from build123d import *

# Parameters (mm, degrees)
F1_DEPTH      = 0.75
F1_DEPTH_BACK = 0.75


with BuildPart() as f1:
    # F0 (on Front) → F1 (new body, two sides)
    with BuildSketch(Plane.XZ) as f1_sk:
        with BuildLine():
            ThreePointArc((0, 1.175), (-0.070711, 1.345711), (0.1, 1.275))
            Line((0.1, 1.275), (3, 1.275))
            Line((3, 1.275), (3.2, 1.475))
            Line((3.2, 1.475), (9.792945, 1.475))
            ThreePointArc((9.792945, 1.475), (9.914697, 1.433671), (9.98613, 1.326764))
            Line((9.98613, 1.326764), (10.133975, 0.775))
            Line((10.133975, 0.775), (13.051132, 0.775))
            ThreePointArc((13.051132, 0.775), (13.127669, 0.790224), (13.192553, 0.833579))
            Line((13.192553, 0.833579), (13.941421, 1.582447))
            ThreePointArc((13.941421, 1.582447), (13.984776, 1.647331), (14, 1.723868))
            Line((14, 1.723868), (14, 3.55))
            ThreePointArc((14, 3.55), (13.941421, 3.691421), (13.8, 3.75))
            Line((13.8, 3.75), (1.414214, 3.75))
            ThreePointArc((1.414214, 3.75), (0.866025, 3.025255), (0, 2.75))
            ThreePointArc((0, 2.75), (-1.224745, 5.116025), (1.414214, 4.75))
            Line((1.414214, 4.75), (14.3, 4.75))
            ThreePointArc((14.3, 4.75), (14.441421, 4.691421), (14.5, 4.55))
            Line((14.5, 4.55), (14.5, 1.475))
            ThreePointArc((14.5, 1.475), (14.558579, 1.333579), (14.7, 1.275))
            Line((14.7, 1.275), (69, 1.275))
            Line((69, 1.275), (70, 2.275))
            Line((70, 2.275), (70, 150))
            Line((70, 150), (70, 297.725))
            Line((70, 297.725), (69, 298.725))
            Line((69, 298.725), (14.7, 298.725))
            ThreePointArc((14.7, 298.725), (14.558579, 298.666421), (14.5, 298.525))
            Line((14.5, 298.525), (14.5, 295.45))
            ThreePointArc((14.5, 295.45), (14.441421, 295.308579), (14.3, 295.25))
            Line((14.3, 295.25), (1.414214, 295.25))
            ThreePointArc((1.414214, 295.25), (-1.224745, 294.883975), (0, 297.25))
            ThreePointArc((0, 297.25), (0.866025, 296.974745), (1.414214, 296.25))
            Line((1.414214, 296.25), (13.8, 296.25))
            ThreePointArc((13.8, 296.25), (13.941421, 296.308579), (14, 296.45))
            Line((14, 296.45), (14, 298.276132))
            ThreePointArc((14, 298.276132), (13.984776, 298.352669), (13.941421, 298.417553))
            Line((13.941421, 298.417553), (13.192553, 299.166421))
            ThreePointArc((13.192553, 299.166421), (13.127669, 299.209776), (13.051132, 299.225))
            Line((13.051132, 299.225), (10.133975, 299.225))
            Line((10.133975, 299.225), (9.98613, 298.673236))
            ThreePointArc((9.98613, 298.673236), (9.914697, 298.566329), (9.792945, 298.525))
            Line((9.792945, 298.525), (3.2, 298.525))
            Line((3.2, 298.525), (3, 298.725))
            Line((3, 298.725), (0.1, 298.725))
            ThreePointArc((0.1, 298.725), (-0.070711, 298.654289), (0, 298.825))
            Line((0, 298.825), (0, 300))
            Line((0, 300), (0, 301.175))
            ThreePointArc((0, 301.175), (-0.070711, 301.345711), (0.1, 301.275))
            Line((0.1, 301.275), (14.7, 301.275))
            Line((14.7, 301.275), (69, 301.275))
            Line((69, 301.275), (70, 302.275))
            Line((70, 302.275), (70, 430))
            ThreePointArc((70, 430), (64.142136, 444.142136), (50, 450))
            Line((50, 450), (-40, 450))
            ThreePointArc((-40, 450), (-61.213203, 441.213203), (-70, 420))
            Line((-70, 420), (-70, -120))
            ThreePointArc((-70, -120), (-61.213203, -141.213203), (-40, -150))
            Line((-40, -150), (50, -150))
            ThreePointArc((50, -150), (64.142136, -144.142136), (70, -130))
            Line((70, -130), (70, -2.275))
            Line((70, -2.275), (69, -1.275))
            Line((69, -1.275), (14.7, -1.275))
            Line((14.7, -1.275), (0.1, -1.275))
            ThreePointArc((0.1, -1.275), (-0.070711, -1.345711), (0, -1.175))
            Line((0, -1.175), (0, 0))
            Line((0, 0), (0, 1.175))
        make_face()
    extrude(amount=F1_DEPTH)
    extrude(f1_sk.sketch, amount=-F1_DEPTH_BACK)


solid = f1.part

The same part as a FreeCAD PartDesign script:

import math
import FreeCAD as App
import Part
import Sketcher

V = App.Vector

doc = App.newDocument("Part")
params = doc.addObject("Spreadsheet::Sheet", "Params")
for row, (alias, value) in enumerate([
    ("sketch1_radius", "19.999999 mm"),
    ("sketch1_radius2", "30.000001 mm"),
    ("sketch1_radius3", "0.1 mm"),
    ("sketch1_radius4", "0.199999 mm"),
    ("sketch1_radius5", "1.500002 mm"),
    ("pad1_length", "0.75 mm"),
    ("pad1_length2", "0.75 mm"),
], start=1):
    params.set(f"A{row}", alias)
    params.set(f"B{row}", "=" + value)
    params.setAlias(f"B{row}", alias)

body = doc.addObject("PartDesign::Body", "Body")

sketch1 = body.newObject("Sketcher::SketchObject", "Sketch")
sketch1.AttachmentSupport = (doc.getObject("XZ_Plane"), [""])
sketch1.MapMode = "FlatFace"
sketch1.addGeometry(Part.ArcOfCircle(Part.Circle(V(0, 1.28, 0), V(0, 0, 1), 0.1), math.radians(0), math.radians(270)), False)
sketch1.addGeometry(Part.LineSegment(V(0.1, 1.27, 0), V(3, 1.27, 0)), False)
sketch1.addGeometry(Part.LineSegment(V(3, 1.27, 0), V(3.2, 1.48, 0)), False)
sketch1.addGeometry(Part.LineSegment(V(3.2, 1.48, 0), V(9.79, 1.48, 0)), False)
sketch1.addGeometry(Part.ArcOfCircle(Part.Circle(V(9.79, 1.28, 0), V(0, 0, 1), 0.2), math.radians(15), math.radians(90)), False)
sketch1.addGeometry(Part.LineSegment(V(9.99, 1.33, 0), V(10.13, 0.78, 0)), False)
sketch1.addGeometry(Part.LineSegment(V(10.13, 0.78, 0), V(13.05, 0.78, 0)), False)
sketch1.addGeometry(Part.ArcOfCircle(Part.Circle(V(13.05, 0.97, 0), V(0, 0, 1), 0.2), math.radians(-90), math.radians(-45)), False)
sketch1.addGeometry(Part.LineSegment(V(13.19, 0.83, 0), V(13.94, 1.58, 0)), False)
sketch1.addGeometry(Part.ArcOfCircle(Part.Circle(V(13.8, 1.72, 0), V(0, 0, 1), 0.2), math.radians(-45), math.radians(0)), False)
sketch1.addGeometry(Part.LineSegment(V(14, 1.72, 0), V(14, 3.55, 0)), False)
sketch1.addGeometry(Part.ArcOfCircle(Part.Circle(V(13.8, 3.55, 0), V(0, 0, 1), 0.2), math.radians(0), math.radians(90)), False)
sketch1.addGeometry(Part.LineSegment(V(13.8, 3.75, 0), V(1.41, 3.75, 0)), False)
sketch1.addGeometry(Part.ArcOfCircle(Part.Circle(V(0, 4.25, 0), V(0, 0, 1), 1.5), math.radians(-90), math.radians(-19)), False)
sketch1.addGeometry(Part.ArcOfCircle(Part.Circle(V(0, 4.25, 0), V(0, 0, 1), 1.5), math.radians(19), math.radians(270)), False)
sketch1.addGeometry(Part.LineSegment(V(1.41, 4.75, 0), V(14.3, 4.75, 0)), False)
sketch1.addGeometry(Part.ArcOfCircle(Part.Circle(V(14.3, 4.55, 0), V(0, 0, 1), 0.2), math.radians(0), math.radians(90)), False)
sketch1.addGeometry(Part.LineSegment(V(14.5, 4.55, 0), V(14.5, 1.48, 0)), False)
sketch1.addGeometry(Part.ArcOfCircle(Part.Circle(V(14.7, 1.48, 0), V(0, 0, 1), 0.2), math.radians(-180), math.radians(-90)), False)
sketch1.addGeometry(Part.LineSegment(V(14.7, 1.27, 0), V(69, 1.27, 0)), False)
sketch1.addGeometry(Part.LineSegment(V(69, 1.27, 0), V(70, 2.27, 0)), False)
sketch1.addGeometry(Part.LineSegment(V(70, 2.27, 0), V(70, 297.73, 0)), False)
sketch1.addGeometry(Part.LineSegment(V(70, 297.73, 0), V(69, 298.73, 0)), False)
sketch1.addGeometry(Part.LineSegment(V(69, 298.73, 0), V(14.7, 298.73, 0)), False)
sketch1.addGeometry(Part.ArcOfCircle(Part.Circle(V(14.7, 298.52, 0), V(0, 0, 1), 0.2), math.radians(90), math.radians(180)), False)
sketch1.addGeometry(Part.LineSegment(V(14.5, 298.52, 0), V(14.5, 295.45, 0)), False)
sketch1.addGeometry(Part.ArcOfCircle(Part.Circle(V(14.3, 295.45, 0), V(0, 0, 1), 0.2), math.radians(-90), math.radians(0)), False)
sketch1.addGeometry(Part.LineSegment(V(14.3, 295.25, 0), V(1.41, 295.25, 0)), False)
sketch1.addGeometry(Part.ArcOfCircle(Part.Circle(V(0, 295.75, 0), V(0, 0, 1), 1.5), math.radians(90), math.radians(341)), False)
sketch1.addGeometry(Part.ArcOfCircle(Part.Circle(V(0, 295.75, 0), V(0, 0, 1), 1.5), math.radians(19), math.radians(90)), False)
sketch1.addGeometry(Part.LineSegment(V(1.41, 296.25, 0), V(13.8, 296.25, 0)), False)
sketch1.addGeometry(Part.ArcOfCircle(Part.Circle(V(13.8, 296.45, 0), V(0, 0, 1), 0.2), math.radians(-90), math.radians(0)), False)
sketch1.addGeometry(Part.LineSegment(V(14, 296.45, 0), V(14, 298.28, 0)), False)
sketch1.addGeometry(Part.ArcOfCircle(Part.Circle(V(13.8, 298.28, 0), V(0, 0, 1), 0.2), math.radians(0), math.radians(45)), False)
sketch1.addGeometry(Part.LineSegment(V(13.94, 298.42, 0), V(13.19, 299.17, 0)), False)
sketch1.addGeometry(Part.ArcOfCircle(Part.Circle(V(13.05, 299.03, 0), V(0, 0, 1), 0.2), math.radians(45), math.radians(90)), False)
sketch1.addGeometry(Part.LineSegment(V(13.05, 299.23, 0), V(10.13, 299.23, 0)), False)
sketch1.addGeometry(Part.LineSegment(V(10.13, 299.23, 0), V(9.99, 298.67, 0)), False)
sketch1.addGeometry(Part.ArcOfCircle(Part.Circle(V(9.79, 298.72, 0), V(0, 0, 1), 0.2), math.radians(-90), math.radians(-15)), False)
sketch1.addGeometry(Part.LineSegment(V(9.79, 298.52, 0), V(3.2, 298.52, 0)), False)
sketch1.addGeometry(Part.LineSegment(V(3.2, 298.52, 0), V(3, 298.73, 0)), False)
sketch1.addGeometry(Part.LineSegment(V(3, 298.73, 0), V(0.1, 298.73, 0)), False)
sketch1.addGeometry(Part.ArcOfCircle(Part.Circle(V(0, 298.72, 0), V(0, 0, 1), 0.1), math.radians(90), math.radians(360)), False)
sketch1.addGeometry(Part.LineSegment(V(0, 298.82, 0), V(0, 301.18, 0)), False)
sketch1.addGeometry(Part.ArcOfCircle(Part.Circle(V(0, 301.28, 0), V(0, 0, 1), 0.1), math.radians(0), math.radians(270)), False)
sketch1.addGeometry(Part.LineSegment(V(0.1, 301.27, 0), V(69, 301.27, 0)), False)
sketch1.addGeometry(Part.LineSegment(V(69, 301.27, 0), V(70, 302.27, 0)), False)
sketch1.addGeometry(Part.LineSegment(V(70, 302.27, 0), V(70, 430, 0)), False)
sketch1.addGeometry(Part.ArcOfCircle(Part.Circle(V(50, 430, 0), V(0, 0, 1), 20), math.radians(0), math.radians(90)), False)
sketch1.addGeometry(Part.LineSegment(V(50, 450, 0), V(-40, 450, 0)), False)
sketch1.addGeometry(Part.ArcOfCircle(Part.Circle(V(-40, 420, 0), V(0, 0, 1), 30), math.radians(90), math.radians(180)), False)
sketch1.addGeometry(Part.LineSegment(V(-70, 420, 0), V(-70, -120, 0)), False)
sketch1.addGeometry(Part.ArcOfCircle(Part.Circle(V(-40, -120, 0), V(0, 0, 1), 30), math.radians(-180), math.radians(-90)), False)
sketch1.addGeometry(Part.LineSegment(V(-40, -150, 0), V(50, -150, 0)), False)
sketch1.addGeometry(Part.ArcOfCircle(Part.Circle(V(50, -130, 0), V(0, 0, 1), 20), math.radians(-90), math.radians(0)), False)
sketch1.addGeometry(Part.LineSegment(V(70, -130, 0), V(70, -2.27, 0)), False)
sketch1.addGeometry(Part.LineSegment(V(70, -2.27, 0), V(69, -1.27, 0)), False)
sketch1.addGeometry(Part.LineSegment(V(69, -1.27, 0), V(0.1, -1.27, 0)), False)
sketch1.addGeometry(Part.ArcOfCircle(Part.Circle(V(0, -1.28, 0), V(0, 0, 1), 0.1), math.radians(90), math.radians(360)), False)
sketch1.addGeometry(Part.LineSegment(V(0, -1.18, 0), V(0, 1.18, 0)), False)
sketch1.addConstraint(Sketcher.Constraint("Coincident", 0, 1, 1, 1))
sketch1.addConstraint(Sketcher.Constraint("Coincident", 1, 2, 2, 1))
sketch1.addConstraint(Sketcher.Constraint("Coincident", 2, 2, 3, 1))
sketch1.addConstraint(Sketcher.Constraint("Tangent", 3, 2, 4, 2))
sketch1.addConstraint(Sketcher.Constraint("Tangent", 4, 1, 5, 1))
sketch1.addConstraint(Sketcher.Constraint("Coincident", 5, 2, 6, 1))
sketch1.addConstraint(Sketcher.Constraint("Coincident", 6, 2, 7, 1))
sketch1.addConstraint(Sketcher.Constraint("Coincident", 7, 2, 8, 1))
sketch1.addConstraint(Sketcher.Constraint("Coincident", 8, 2, 9, 1))
sketch1.addConstraint(Sketcher.Constraint("Coincident", 9, 2, 10, 1))
sketch1.addConstraint(Sketcher.Constraint("Coincident", 10, 2, 11, 1))
sketch1.addConstraint(Sketcher.Constraint("Coincident", 11, 2, 12, 1))
sketch1.addConstraint(Sketcher.Constraint("Coincident", 12, 2, 13, 2))
sketch1.addConstraint(Sketcher.Constraint("Tangent", 13, 1, 14, 2))
sketch1.addConstraint(Sketcher.Constraint("Coincident", 14, 1, 15, 1))
sketch1.addConstraint(Sketcher.Constraint("Coincident", 15, 2, 16, 2))
sketch1.addConstraint(Sketcher.Constraint("Coincident", 16, 1, 17, 1))
sketch1.addConstraint(Sketcher.Constraint("Coincident", 17, 2, 18, 1))
sketch1.addConstraint(Sketcher.Constraint("Coincident", 18, 2, 19, 1))
sketch1.addConstraint(Sketcher.Constraint("Coincident", 19, 2, 20, 1))
sketch1.addConstraint(Sketcher.Constraint("Coincident", 20, 2, 21, 1))
sketch1.addConstraint(Sketcher.Constraint("Coincident", 21, 2, 22, 1))
sketch1.addConstraint(Sketcher.Constraint("Coincident", 22, 2, 23, 1))
sketch1.addConstraint(Sketcher.Constraint("Coincident", 23, 2, 24, 1))
sketch1.addConstraint(Sketcher.Constraint("Coincident", 24, 2, 25, 1))
sketch1.addConstraint(Sketcher.Constraint("Coincident", 25, 2, 26, 2))
sketch1.addConstraint(Sketcher.Constraint("Coincident", 26, 1, 27, 1))
sketch1.addConstraint(Sketcher.Constraint("Coincident", 27, 2, 28, 2))
sketch1.addConstraint(Sketcher.Constraint("Tangent", 28, 1, 29, 2))
sketch1.addConstraint(Sketcher.Constraint("Coincident", 29, 1, 30, 1))
sketch1.addConstraint(Sketcher.Constraint("Coincident", 30, 2, 31, 1))
sketch1.addConstraint(Sketcher.Constraint("Coincident", 31, 2, 32, 1))
sketch1.addConstraint(Sketcher.Constraint("Coincident", 32, 2, 33, 1))
sketch1.addConstraint(Sketcher.Constraint("Coincident", 33, 2, 34, 1))
sketch1.addConstraint(Sketcher.Constraint("Coincident", 34, 2, 35, 1))
sketch1.addConstraint(Sketcher.Constraint("Coincident", 35, 2, 36, 1))
sketch1.addConstraint(Sketcher.Constraint("Coincident", 36, 2, 37, 1))
sketch1.addConstraint(Sketcher.Constraint("Tangent", 37, 2, 38, 2))
sketch1.addConstraint(Sketcher.Constraint("Tangent", 38, 1, 39, 1))
sketch1.addConstraint(Sketcher.Constraint("Coincident", 39, 2, 40, 1))
sketch1.addConstraint(Sketcher.Constraint("Coincident", 40, 2, 41, 1))
sketch1.addConstraint(Sketcher.Constraint("Coincident", 41, 2, 42, 2))
sketch1.addConstraint(Sketcher.Constraint("Coincident", 42, 1, 43, 1))
sketch1.addConstraint(Sketcher.Constraint("Coincident", 43, 2, 44, 2))
sketch1.addConstraint(Sketcher.Constraint("Coincident", 44, 1, 45, 1))
sketch1.addConstraint(Sketcher.Constraint("Coincident", 45, 2, 46, 1))
sketch1.addConstraint(Sketcher.Constraint("Coincident", 46, 2, 47, 1))
sketch1.addConstraint(Sketcher.Constraint("Tangent", 47, 2, 48, 1))
sketch1.addConstraint(Sketcher.Constraint("Tangent", 48, 2, 49, 1))
sketch1.addConstraint(Sketcher.Constraint("Tangent", 49, 2, 50, 1))
sketch1.addConstraint(Sketcher.Constraint("Tangent", 50, 2, 51, 1))
sketch1.addConstraint(Sketcher.Constraint("Tangent", 51, 2, 52, 1))
sketch1.addConstraint(Sketcher.Constraint("Tangent", 52, 2, 53, 1))
sketch1.addConstraint(Sketcher.Constraint("Tangent", 53, 2, 54, 1))
sketch1.addConstraint(Sketcher.Constraint("Tangent", 54, 2, 55, 1))
sketch1.addConstraint(Sketcher.Constraint("Coincident", 55, 2, 56, 1))
sketch1.addConstraint(Sketcher.Constraint("Coincident", 56, 2, 57, 1))
sketch1.addConstraint(Sketcher.Constraint("Coincident", 57, 2, 58, 2))
sketch1.addConstraint(Sketcher.Constraint("Coincident", 58, 1, 59, 1))
sketch1.addConstraint(Sketcher.Constraint("Coincident", 59, 2, 0, 2))
sketch1.addConstraint(Sketcher.Constraint("Horizontal", 1))
sketch1.addConstraint(Sketcher.Constraint("Horizontal", 3))
sketch1.addConstraint(Sketcher.Constraint("Horizontal", 6))
sketch1.addConstraint(Sketcher.Constraint("Vertical", 10))
sketch1.addConstraint(Sketcher.Constraint("Horizontal", 12))
sketch1.addConstraint(Sketcher.Constraint("Horizontal", 15))
sketch1.addConstraint(Sketcher.Constraint("Vertical", 17))
sketch1.addConstraint(Sketcher.Constraint("Horizontal", 19))
sketch1.addConstraint(Sketcher.Constraint("Vertical", 21))
sketch1.addConstraint(Sketcher.Constraint("Horizontal", 23))
sketch1.addConstraint(Sketcher.Constraint("Vertical", 25))
sketch1.addConstraint(Sketcher.Constraint("Horizontal", 27))
sketch1.addConstraint(Sketcher.Constraint("Horizontal", 30))
sketch1.addConstraint(Sketcher.Constraint("Vertical", 32))
sketch1.addConstraint(Sketcher.Constraint("Horizontal", 36))
sketch1.addConstraint(Sketcher.Constraint("Horizontal", 39))
sketch1.addConstraint(Sketcher.Constraint("Horizontal", 41))
sketch1.addConstraint(Sketcher.Constraint("Vertical", 43))
sketch1.addConstraint(Sketcher.Constraint("Horizontal", 45))
sketch1.addConstraint(Sketcher.Constraint("Vertical", 47))
sketch1.addConstraint(Sketcher.Constraint("Horizontal", 49))
sketch1.addConstraint(Sketcher.Constraint("Vertical", 51))
sketch1.addConstraint(Sketcher.Constraint("Horizontal", 53))
sketch1.addConstraint(Sketcher.Constraint("Vertical", 55))
sketch1.addConstraint(Sketcher.Constraint("Horizontal", 57))
sketch1.addConstraint(Sketcher.Constraint("Vertical", 59))
sketch1.addConstraint(Sketcher.Constraint("Equal", 7, 9))
sketch1.addConstraint(Sketcher.Constraint("Equal", 4, 11))
sketch1.addConstraint(Sketcher.Constraint("Equal", 13, 14))
sketch1.addConstraint(Sketcher.Constraint("Equal", 11, 16))
sketch1.addConstraint(Sketcher.Constraint("Equal", 16, 18))
sketch1.addConstraint(Sketcher.Constraint("Equal", 18, 24))
sketch1.addConstraint(Sketcher.Constraint("Equal", 24, 26))
sketch1.addConstraint(Sketcher.Constraint("Equal", 14, 28))
sketch1.addConstraint(Sketcher.Constraint("Equal", 28, 29))
sketch1.addConstraint(Sketcher.Constraint("Equal", 26, 31))
sketch1.addConstraint(Sketcher.Constraint("Equal", 9, 33))
sketch1.addConstraint(Sketcher.Constraint("Equal", 33, 35))
sketch1.addConstraint(Sketcher.Constraint("Equal", 31, 38))
sketch1.addConstraint(Sketcher.Constraint("Equal", 0, 42))
sketch1.addConstraint(Sketcher.Constraint("Equal", 42, 44))
sketch1.addConstraint(Sketcher.Constraint("Equal", 50, 52))
sketch1.addConstraint(Sketcher.Constraint("Equal", 48, 54))
sketch1.addConstraint(Sketcher.Constraint("Equal", 44, 58))
sketch1.addConstraint(Sketcher.Constraint("Symmetric", 0, 3, 58, 3, -1, 1))
sketch1.addConstraint(Sketcher.Constraint("Symmetric", 20, 2, 55, 2, -1))
sketch1.addConstraint(Sketcher.Constraint("Symmetric", 19, 2, 56, 2, -1))
sketch1.addConstraint(Sketcher.Constraint("Symmetric", 0, 1, 57, 2, -1))
sketch1.addConstraint(Sketcher.Constraint("PointOnObject", 13, 3, -2))
sketch1.addConstraint(Sketcher.Constraint("PointOnObject", 28, 3, -2))
sketch1.addConstraint(Sketcher.Constraint("PointOnObject", 42, 3, -2))
sketch1.addConstraint(Sketcher.Constraint("PointOnObject", 44, 3, -2))
sketch1.addConstraint(Sketcher.Constraint("PointOnObject", 13, 1, -2))
sketch1.addConstraint(Sketcher.Constraint("PointOnObject", 28, 1, -2))
sketch1.addConstraint(Sketcher.Constraint("PointOnObject", 42, 1, -2))
sketch1.addConstraint(Sketcher.Constraint("PointOnObject", 58, 1, -2))
sketch1.addConstraint(Sketcher.Constraint("Parallel", 2, 8))
sketch1.addConstraint(Sketcher.Constraint("Parallel", 8, 20))
sketch1.addConstraint(Sketcher.Constraint("Perpendicular", 20, 22))
sketch1.addConstraint(Sketcher.Constraint("Parallel", 22, 34))
sketch1.addConstraint(Sketcher.Constraint("Parallel", 34, 40))
sketch1.addConstraint(Sketcher.Constraint("Perpendicular", 40, 46))
sketch1.addConstraint(Sketcher.Constraint("Perpendicular", 46, 56))
sketch1.addConstraint(Sketcher.Constraint("Horizontal", 0, 3, 4, 3))
sketch1.addConstraint(Sketcher.Constraint("Horizontal", 38, 3, 42, 3))
sketch1.addConstraint(Sketcher.Constraint("Horizontal", 4, 3, 0, 1))
sketch1.addConstraint(Sketcher.Constraint("Horizontal", 11, 3, 10, 2))
sketch1.addConstraint(Sketcher.Constraint("Horizontal", 3, 2, 17, 2))
sketch1.addConstraint(Sketcher.Constraint("Horizontal", 42, 3, 22, 2))
sketch1.addConstraint(Sketcher.Constraint("Horizontal", 26, 3, 25, 2))
sketch1.addConstraint(Sketcher.Constraint("Horizontal", 33, 3, 32, 2))
sketch1.addConstraint(Sketcher.Constraint("Horizontal", 24, 2, 38, 1))
sketch1.addConstraint(Sketcher.Constraint("Horizontal", 23, 2, 40, 2))
sketch1.addConstraint(Sketcher.Constraint("Vertical", 18, 3, 24, 3))
sketch1.addConstraint(Sketcher.Constraint("Vertical", 11, 3, 31, 3))
sketch1.addConstraint(Sketcher.Constraint("Vertical", 7, 3, 35, 3))
sketch1.addConstraint(Sketcher.Constraint("Vertical", 4, 3, 38, 3))
sketch1.addConstraint(Sketcher.Constraint("Vertical", 48, 3, 54, 3))
sketch1.addConstraint(Sketcher.Constraint("Vertical", 35, 3, 6, 2))
sketch1.addConstraint(Sketcher.Constraint("Vertical", 31, 3, 11, 2))
sketch1.addConstraint(Sketcher.Constraint("Vertical", 12, 2, 14, 1))
sketch1.addConstraint(Sketcher.Constraint("Vertical", 26, 3, 15, 2))
sketch1.addConstraint(Sketcher.Constraint("Vertical", 24, 3, 18, 2))
sketch1.addConstraint(Sketcher.Constraint("Vertical", 19, 2, 22, 2))
sketch1.addConstraint(Sketcher.Constraint("Vertical", 18, 2, 23, 2))
sketch1.addConstraint(Sketcher.Constraint("Vertical", 15, 2, 26, 1))
sketch1.addConstraint(Sketcher.Constraint("Vertical", 14, 1, 27, 2))
sketch1.addConstraint(Sketcher.Constraint("Vertical", 27, 2, 29, 1))
sketch1.addConstraint(Sketcher.Constraint("Vertical", 11, 2, 30, 2))
sketch1.addConstraint(Sketcher.Constraint("Vertical", 8, 2, 33, 2))
sketch1.addConstraint(Sketcher.Constraint("Vertical", 7, 2, 34, 2))
sketch1.addConstraint(Sketcher.Constraint("Vertical", 6, 2, 35, 2))
sketch1.addConstraint(Sketcher.Constraint("Vertical", 5, 2, 36, 2))
sketch1.addConstraint(Sketcher.Constraint("Vertical", 4, 1, 37, 2))
sketch1.addConstraint(Sketcher.Constraint("Vertical", 2, 2, 39, 2))
sketch1.addConstraint(Sketcher.Constraint("Vertical", 22, 2, 45, 2))
sketch1.addConstraint(Sketcher.Constraint("Equal", 17, 25))
sketch1.addConstraint(Sketcher.Constraint("Equal", 10, 32))
sketch1.addConstraint(Sketcher.Constraint("Equal", 47, 55))
sketch1.addConstraint(Sketcher.Constraint("Equal", 43, 59))
sketch1.addConstraint(Sketcher.Constraint("Radius", 48, 19.999999))
sketch1.addConstraint(Sketcher.Constraint("Radius", 50, 30.000001))
sketch1.addConstraint(Sketcher.Constraint("Radius", 0, 0.1))
sketch1.addConstraint(Sketcher.Constraint("Radius", 4, 0.199999))
sketch1.addConstraint(Sketcher.Constraint("Radius", 13, 1.500002))
sketch1.addConstraint(Sketcher.Constraint("DistanceX", 49, 2, 49, 1, 90.0))
sketch1.addConstraint(Sketcher.Constraint("DistanceY", 51, 2, 51, 1, 540.0))
sketch1.addConstraint(Sketcher.Constraint("DistanceX", 1, 1, 1, 2, 2.9))
sketch1.addConstraint(Sketcher.Constraint("DistanceX", 19, 1, 19, 2, 54.3))
sketch1.addConstraint(Sketcher.Constraint("DistanceX", 45, 1, 45, 2, 68.9))
sketch1.addConstraint(Sketcher.Constraint("DistanceX", -1, 1, 48, 3, 50.000001))
sketch1.addConstraint(Sketcher.Constraint("DistanceY", -1, 1, 48, 3, 430.000001))
sketch1.addConstraint(Sketcher.Constraint("DistanceX", -1, 1, 9, 2, 14.0))
sketch1.addConstraint(Sketcher.Constraint("DistanceY", 21, 1, 21, 2, 295.45))
sketch1.addConstraint(Sketcher.Constraint("DistanceY", 43, 1, 43, 2, 2.35))
sketch1.addConstraint(Sketcher.Constraint("DistanceY", 17, 2, 17, 1, 3.075))
sketch1.addConstraint(Sketcher.Constraint("DistanceY", -1, 1, 11, 3, 3.549999))
sketch1.addConstraint(Sketcher.Constraint("DistanceY", -1, 1, 13, 3, 4.250002))
sketch1.addConstraint(Sketcher.Constraint("DistanceY", -1, 1, 31, 2, 296.45))
sketch1.addConstraint(Sketcher.Constraint("DistanceY", -1, 1, 5, 2, 0.775))
sketch1.addConstraint(Sketcher.Constraint("Radius", 7, 0.199994))
sketch1.addConstraint(Sketcher.Constraint("DistanceY", 10, 1, 10, 2, 1.826132))
sketch1.addConstraint(Sketcher.Constraint("Distance", 5, 0.571228))
sketch1.addConstraint(Sketcher.Constraint("Distance", 8, 1.059059))
sketch1.addConstraint(Sketcher.Constraint("DistanceX", 3, 1, 3, 2, 6.592945))
sketch1.addConstraint(Sketcher.Constraint("DistanceY", -1, 1, 7, 2, 0.833579))
sketch1.setExpression("Constraints[160]", "Params.sketch1_radius")
sketch1.setExpression("Constraints[161]", "Params.sketch1_radius2")
sketch1.setExpression("Constraints[162]", "Params.sketch1_radius3")
sketch1.setExpression("Constraints[163]", "Params.sketch1_radius4")
sketch1.setExpression("Constraints[164]", "Params.sketch1_radius5")
pad1 = body.newObject("PartDesign::Pad", "Pad")
pad1.Profile = sketch1
pad1.Type = "TwoLengths"
pad1.setExpression("Length", "Params.pad1_length")
pad1.setExpression("Length2", "Params.pad1_length2")

doc.recompute()
